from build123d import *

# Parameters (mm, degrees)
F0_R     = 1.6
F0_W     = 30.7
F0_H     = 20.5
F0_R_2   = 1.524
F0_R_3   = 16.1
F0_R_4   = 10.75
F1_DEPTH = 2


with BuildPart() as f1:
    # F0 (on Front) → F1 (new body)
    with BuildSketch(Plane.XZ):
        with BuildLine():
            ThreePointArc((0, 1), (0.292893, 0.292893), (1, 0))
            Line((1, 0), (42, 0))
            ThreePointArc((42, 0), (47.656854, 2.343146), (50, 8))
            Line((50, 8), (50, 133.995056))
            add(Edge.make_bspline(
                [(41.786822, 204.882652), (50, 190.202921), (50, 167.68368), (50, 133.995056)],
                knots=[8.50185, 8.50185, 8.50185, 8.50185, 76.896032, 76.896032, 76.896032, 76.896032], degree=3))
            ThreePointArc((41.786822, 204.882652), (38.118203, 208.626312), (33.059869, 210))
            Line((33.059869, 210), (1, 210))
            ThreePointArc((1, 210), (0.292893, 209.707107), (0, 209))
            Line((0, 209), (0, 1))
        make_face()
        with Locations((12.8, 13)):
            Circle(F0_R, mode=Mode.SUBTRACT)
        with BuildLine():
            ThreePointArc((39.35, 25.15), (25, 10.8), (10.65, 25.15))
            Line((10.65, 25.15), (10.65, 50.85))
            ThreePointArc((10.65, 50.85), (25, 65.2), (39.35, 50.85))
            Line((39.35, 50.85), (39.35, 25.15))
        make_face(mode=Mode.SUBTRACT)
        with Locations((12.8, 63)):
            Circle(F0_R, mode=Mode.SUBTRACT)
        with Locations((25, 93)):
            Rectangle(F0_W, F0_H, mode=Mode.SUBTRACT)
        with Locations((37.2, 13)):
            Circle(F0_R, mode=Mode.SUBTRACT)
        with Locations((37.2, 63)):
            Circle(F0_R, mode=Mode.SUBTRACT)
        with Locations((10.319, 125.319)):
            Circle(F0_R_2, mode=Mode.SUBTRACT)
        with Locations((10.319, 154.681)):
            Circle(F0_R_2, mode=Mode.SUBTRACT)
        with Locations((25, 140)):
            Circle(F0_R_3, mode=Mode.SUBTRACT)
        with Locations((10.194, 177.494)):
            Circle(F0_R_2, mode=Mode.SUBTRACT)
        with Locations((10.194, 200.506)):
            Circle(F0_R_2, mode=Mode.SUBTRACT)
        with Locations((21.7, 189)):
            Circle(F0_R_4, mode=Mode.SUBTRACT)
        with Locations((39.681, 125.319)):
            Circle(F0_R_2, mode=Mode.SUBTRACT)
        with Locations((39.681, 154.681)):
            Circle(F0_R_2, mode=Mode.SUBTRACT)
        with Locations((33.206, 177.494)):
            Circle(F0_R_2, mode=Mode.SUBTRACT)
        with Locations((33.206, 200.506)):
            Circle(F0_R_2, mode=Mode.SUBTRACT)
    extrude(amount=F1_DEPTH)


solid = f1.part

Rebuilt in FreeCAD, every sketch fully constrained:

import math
import FreeCAD as App
import Part
import Sketcher
from FreeCAD import Vector
Q = App.Units.Quantity


def add_polygon(sketch, points):
    """Adds a closed chain of lines whose ends are joined by coincident constraints."""
    first, n = sketch.GeometryCount, len(points)
    for a, b in zip(points, points[1:] + points[:1]):
        sketch.addGeometry(Part.LineSegment(App.Vector(*a, 0), App.Vector(*b, 0)), False)
    for i in range(n):
        sketch.addConstraint(Sketcher.Constraint("Coincident", first + i, 2, first + (i + 1) % n, 1))

doc = App.newDocument("Part")
body = doc.addObject("PartDesign::Body", "Body")

sketch1 = body.newObject("Sketcher::SketchObject", "Sketch")
sketch1.AttachmentSupport = (doc.getObject("XZ_Plane"), [""])
sketch1.MapMode = "FlatFace"
sketch1.addGeometry(Part.ArcOfCircle(Part.Circle(Vector(0.999999, 0.999999, 0), Vector(0, 0, 1), 0.999999), math.radians(179.999957), math.radians(270.000043)), False)
sketch1.addGeometry(Part.LineSegment(Vector(1, 0, 0), Vector(42, 0, 0)), False)
sketch1.addGeometry(Part.ArcOfCircle(Part.Circle(Vector(41.999999, 8.000001, 0), Vector(0, 0, 1), 8.000001), math.radians(-89.999994), math.radians(-0.000006)), False)
sketch1.addGeometry(Part.LineSegment(Vector(50, 8, 0), Vector(50, 133.995056, 0)), False)
sketch1.addGeometry(Part.BSplineCurve([Vector(41.786822, 204.882652, 0), Vector(50, 190.202921, 0), Vector(50, 167.68368, 0), Vector(50, 133.995056, 0)], [4, 4], [8.50185, 76.896032], False, 3, [1, 1, 1, 1], False), False)
sketch1.addGeometry(Part.ArcOfCircle(Part.Circle(Vector(33.059869, 200.000001, 0), Vector(0, 0, 1), 9.999999), math.radians(29.22662), math.radians(90.000002)), False)
sketch1.addGeometry(Part.LineSegment(Vector(33.059869, 210, 0), Vector(1, 210, 0)), False)
sketch1.addGeometry(Part.ArcOfCircle(Part.Circle(Vector(0.999999, 209.000001, 0), Vector(0, 0, 1), 0.999999), math.radians(89.999957), math.radians(180.000043)), False)
sketch1.addGeometry(Part.LineSegment(Vector(0, 209, 0), Vector(0, 1, 0)), False)
sketch1.addGeometry(Part.Circle(Vector(12.8, 13, 0), Vector(0, 0, 1), 1.6), False)
sketch1.addGeometry(Part.Circle(Vector(12.8, 63, 0), Vector(0, 0, 1), 1.6), False)
sketch1.addGeometry(Part.LineSegment(Vector(39.35, 50.85, 0), Vector(39.35, 25.15, 0)), False)
sketch1.addGeometry(Part.ArcOfCircle(Part.Circle(Vector(25, 25.15, 0), Vector(0, 0, 1), 14.35), math.radians(180), math.radians(360)), False)
sketch1.addGeometry(Part.LineSegment(Vector(10.65, 25.15, 0), Vector(10.65, 50.85, 0)), False)
sketch1.addGeometry(Part.ArcOfCircle(Part.Circle(Vector(25, 50.85, 0), Vector(0, 0, 1), 14.35), math.radians(0), math.radians(180)), False)
sketch1.addGeometry(Part.Circle(Vector(37.2, 13, 0), Vector(0, 0, 1), 1.6), False)
add_polygon(sketch1, [(40.35, 82.75), (9.65, 82.75), (9.65, 103.25), (40.35, 103.25)])
sketch1.addGeometry(Part.Circle(Vector(37.2, 63, 0), Vector(0, 0, 1), 1.6), False)
sketch1.addGeometry(Part.Circle(Vector(10.319, 125.319, 0), Vector(0, 0, 1), 1.524), False)
sketch1.addGeometry(Part.Circle(Vector(10.319, 154.681, 0), Vector(0, 0, 1), 1.524), False)
sketch1.addGeometry(Part.Circle(Vector(10.194, 177.494, 0), Vector(0, 0, 1), 1.524), False)
sketch1.addGeometry(Part.Circle(Vector(10.194, 200.506, 0), Vector(0, 0, 1), 1.524), False)
sketch1.addGeometry(Part.Circle(Vector(21.7, 189, 0), Vector(0, 0, 1), 10.75), False)
sketch1.addGeometry(Part.Circle(Vector(25, 140, 0), Vector(0, 0, 1), 16.1), False)
sketch1.addGeometry(Part.Circle(Vector(39.681, 125.319, 0), Vector(0, 0, 1), 1.524), False)
sketch1.addGeometry(Part.Circle(Vector(33.206, 177.494, 0), Vector(0, 0, 1), 1.524), False)
sketch1.addGeometry(Part.Circle(Vector(39.681, 154.681, 0), Vector(0, 0, 1), 1.524), False)
sketch1.addGeometry(Part.Circle(Vector(33.206, 200.506, 0), Vector(0, 0, 1), 1.524), False)
sketch1.addConstraint([
    Sketcher.Constraint("Block", 4),
    Sketcher.Constraint("Tangent", 0, 2, 1, 1),
    Sketcher.Constraint("Tangent", 1, 2, 2, 1),
    Sketcher.Constraint("Tangent", 2, 2, 3, 1),
    Sketcher.Constraint("Coincident", 3, 2, 4, 2),
    Sketcher.Constraint("Coincident", 4, 1, 5, 1),
    Sketcher.Constraint("Tangent", 5, 2, 6, 1),
    Sketcher.Constraint("Tangent", 6, 2, 7, 1),
    Sketcher.Constraint("Tangent", 7, 2, 8, 1),
    Sketcher.Constraint("Tangent", 8, 2, 0, 1),
    Sketcher.Constraint("Tangent", 11, 2, 12, 2),
    Sketcher.Constraint("Tangent", 12, 1, 13, 1),
    Sketcher.Constraint("Tangent", 13, 2, 14, 2),
    Sketcher.Constraint("Tangent", 14, 1, 11, 1),
    Sketcher.Constraint("Horizontal", 1),
    Sketcher.Constraint("Vertical", 3),
    Sketcher.Constraint("Horizontal", 6),
    Sketcher.Constraint("Vertical", 8),
    Sketcher.Constraint("Vertical", 11),
    Sketcher.Constraint("Vertical", 13),
    Sketcher.Constraint("Horizontal", 16),
    Sketcher.Constraint("Vertical", 17),
    Sketcher.Constraint("Horizontal", 18),
    Sketcher.Constraint("Vertical", 19),
    Sketcher.Constraint("Equal", 0, 7),
    Sketcher.Constraint("Equal", 9, 10),
    Sketcher.Constraint("Equal", 10, 15),
    Sketcher.Constraint("Equal", 15, 20),
    Sketcher.Constraint("Equal", 21, 22),
    Sketcher.Constraint("Equal", 22, 23),
    Sketcher.Constraint("Equal", 23, 24),
    Sketcher.Constraint("Equal", 24, 27),
    Sketcher.Constraint("Equal", 27, 28),
    Sketcher.Constraint("Equal", 28, 29),
    Sketcher.Constraint("Equal", 29, 30),
    Sketcher.Constraint("PointOnObject", 0, 2, -1),
    Sketcher.Constraint("PointOnObject", 7, 2, -2),
    Sketcher.Constraint("Horizontal", 9, 3, 15, 3),
    Sketcher.Constraint("Horizontal", 10, 3, 20, 3),
    Sketcher.Constraint("Horizontal", 21, 3, 27, 3),
    Sketcher.Constraint("Horizontal", 23, 3, 28, 3),
    Sketcher.Constraint("Horizontal", 22, 3, 29, 3),
    Sketcher.Constraint("Horizontal", 24, 3, 30, 3),
    Sketcher.Constraint("Vertical", 9, 3, 10, 3),
    Sketcher.Constraint("Vertical", 15, 3, 20, 3),
    Sketcher.Constraint("Vertical", 21, 3, 22, 3),
    Sketcher.Constraint("Vertical", 23, 3, 24, 3),
    Sketcher.Constraint("Vertical", 14, 3, 26, 3),
    Sketcher.Constraint("Vertical", 27, 3, 29, 3),
    Sketcher.Constraint("Vertical", 28, 3, 30, 3),
    Sketcher.Constraint("Radius", 0, Q("0.999999 mm")),
    Sketcher.Constraint("Radius", 2, Q("8.000001 mm")),
    Sketcher.Constraint("Radius", 5, Q("9.999999 mm")),
    Sketcher.Constraint("Diameter", 9, Q("3.2 mm")),
    Sketcher.Constraint("Diameter", 25, Q("21.5 mm")),
    Sketcher.Constraint("Diameter", 26, Q("32.2 mm")),
    Sketcher.Constraint("DistanceY", 8, 2, 8, 1, Q("208 mm")),
    Sketcher.Constraint("Radius", 12, Q("14.35 mm")),
    Sketcher.Constraint("Diameter", 21, Q("3.048 mm")),
    Sketcher.Constraint("DistanceX", 16, 2, 16, 1, Q("30.7 mm")),
    Sketcher.Constraint("DistanceY", 11, 2, 11, 1, Q("25.7 mm")),
    Sketcher.Constraint("DistanceY", 17, 1, 17, 2, Q("20.5 mm")),
    Sketcher.Constraint("DistanceY", -1, 1, 9, 3, Q("13 mm")),
    Sketcher.Constraint("DistanceY", -1, 1, 10, 3, Q("63 mm")),
    Sketcher.Constraint("DistanceX", -1, 1, 12, 3, Q("25 mm")),
    Sketcher.Constraint("DistanceY", -1, 1, 25, 3, Q("189 mm")),
    Sketcher.Constraint("DistanceY", -1, 1, 26, 3, Q("140 mm")),
    Sketcher.Constraint("DistanceX", 16, 2, 13, 2, Q("1 mm")),
    Sketcher.Constraint("DistanceX", -1, 1, 9, 3, Q("12.8 mm")),
    Sketcher.Constraint("DistanceX", -1, 1, 15, 3, Q("37.2 mm")),
    Sketcher.Constraint("DistanceX", -1, 1, 25, 3, Q("21.7 mm")),
    Sketcher.Constraint("DistanceY", 13, 2, 16, 2, Q("31.9 mm")),
    Sketcher.Constraint("DistanceY", -1, 1, 12, 3, Q("25.15 mm")),
    Sketcher.Constraint("DistanceX", -1, 1, 21, 3, Q("10.319 mm")),
    Sketcher.Constraint("DistanceY", -1, 1, 21, 3, Q("125.319 mm")),
    Sketcher.Constraint("DistanceY", -1, 1, 22, 3, Q("154.681 mm")),
    Sketcher.Constraint("DistanceX", -1, 1, 23, 3, Q("10.194 mm")),
    Sketcher.Constraint("DistanceY", -1, 1, 23, 3, Q("177.494 mm")),
    Sketcher.Constraint("DistanceY", -1, 1, 24, 3, Q("200.506 mm")),
    Sketcher.Constraint("DistanceX", -1, 1, 27, 3, Q("39.681 mm")),
    Sketcher.Constraint("DistanceX", -1, 1, 28, 3, Q("33.206 mm")),
])
pad1 = body.newObject("PartDesign::Pad", "Pad")
pad1.Profile = sketch1
pad1.Length = 2

doc.recompute()
